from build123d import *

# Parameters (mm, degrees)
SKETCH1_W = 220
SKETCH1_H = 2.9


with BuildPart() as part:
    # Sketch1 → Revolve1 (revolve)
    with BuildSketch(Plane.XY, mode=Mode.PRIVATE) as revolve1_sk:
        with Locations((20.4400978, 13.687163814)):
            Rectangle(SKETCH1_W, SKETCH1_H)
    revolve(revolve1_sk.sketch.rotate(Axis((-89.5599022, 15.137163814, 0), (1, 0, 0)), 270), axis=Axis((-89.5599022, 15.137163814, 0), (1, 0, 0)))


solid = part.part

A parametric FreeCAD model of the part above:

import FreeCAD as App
import Part
import Sketcher
from FreeCAD import Vector
Q = App.Units.Quantity

doc = App.newDocument("Part")
body = doc.addObject("PartDesign::Body", "Body")

# Sketch on XY plane
sketch1 = body.newObject("Sketcher::SketchObject", "Sketch")
sketch1.AttachmentSupport = (doc.getObject("XY_Plane"), [""])
sketch1.MapMode = "FlatFace"
sketch1.addGeometry([
    Part.LineSegment(Vector(-89.559902, 15.137164, 0), Vector(-89.559902, 12.237164, 0)),
    Part.LineSegment(Vector(-89.559902, 12.237164, 0), Vector(130.440098, 12.237164, 0)),
    Part.LineSegment(Vector(130.440098, 12.237164, 0), Vector(130.440098, 15.137164, 0)),
    Part.LineSegment(Vector(130.440098, 15.137164, 0), Vector(-89.559902, 15.137164, 0)),
], False)
sketch1.addGeometry(Part.LineSegment(Vector(-89.559902, 15.137164, 0), Vector(130.440098, 15.137164, 0)), True)  # axis
sketch1.addConstraint([
    Sketcher.Constraint("Coincident", 0, 2, 1, 1),
    Sketcher.Constraint("Coincident", 1, 2, 2, 1),
    Sketcher.Constraint("Coincident", 2, 2, 3, 1),
    Sketcher.Constraint("Coincident", 3, 2, 0, 1),
    Sketcher.Constraint("Vertical", 0),
    Sketcher.Constraint("Horizontal", 1),
    Sketcher.Constraint("Vertical", 2),
    Sketcher.Constraint("Horizontal", 3),
    Sketcher.Constraint("Horizontal", 4),
    Sketcher.Constraint("Coincident", 4, 1, 3, 2),
    Sketcher.Constraint("Vertical", 1, 2, 4, 2),
    Sketcher.Constraint("DistanceX", 1, 1, 1, 2, Q("220 mm")),
    Sketcher.Constraint("DistanceY", 0, 2, 0, 1, Q("2.9 mm")),
    Sketcher.Constraint("DistanceX", 0, 2, -1, 1, Q("89.559902 mm")),
    Sketcher.Constraint("DistanceY", -1, 1, 0, 2, Q("12.237164 mm")),
])
revolution = body.newObject("PartDesign::Revolution", "Revolution")
revolution.Profile = sketch1
revolution.ReferenceAxis = (sketch1, ["Axis0"])
revolution.Angle = 360

doc.recompute()
